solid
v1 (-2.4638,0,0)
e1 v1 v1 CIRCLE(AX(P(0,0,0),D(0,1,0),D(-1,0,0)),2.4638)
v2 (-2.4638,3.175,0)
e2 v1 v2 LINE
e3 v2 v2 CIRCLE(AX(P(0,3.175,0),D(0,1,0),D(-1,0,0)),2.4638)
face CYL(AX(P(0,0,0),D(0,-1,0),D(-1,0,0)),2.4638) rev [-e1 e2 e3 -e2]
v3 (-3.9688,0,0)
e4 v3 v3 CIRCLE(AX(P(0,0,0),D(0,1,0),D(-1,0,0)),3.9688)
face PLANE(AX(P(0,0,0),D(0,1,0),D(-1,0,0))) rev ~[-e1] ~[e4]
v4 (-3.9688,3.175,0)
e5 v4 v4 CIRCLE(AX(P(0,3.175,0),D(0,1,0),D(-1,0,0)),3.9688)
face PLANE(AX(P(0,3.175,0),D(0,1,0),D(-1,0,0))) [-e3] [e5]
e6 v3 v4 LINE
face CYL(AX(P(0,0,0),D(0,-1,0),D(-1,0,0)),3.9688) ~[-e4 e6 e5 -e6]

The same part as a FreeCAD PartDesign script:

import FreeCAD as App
import Part
import Sketcher

V = App.Vector
Q = App.Units.Quantity

doc = App.newDocument("Part")
body = doc.addObject("PartDesign::Body", "Body")

# Sketch on XZ plane
sketch1 = body.newObject("Sketcher::SketchObject", "Sketch")
sketch1.AttachmentSupport = (doc.getObject("XZ_Plane"), [""])
sketch1.MapMode = "FlatFace"
sketch1.addGeometry([
    Part.Circle(V(0, 0, 0), V(0, 0, 1), 3.9688),
    Part.Circle(V(0, 0, 0), V(0, 0, 1), 2.4638),
], False)
sketch1.addConstraint([
    Sketcher.Constraint("Coincident", 0, 3, -1, 1),
    Sketcher.Constraint("Coincident", 1, 3, -1, 1),
    Sketcher.Constraint("Diameter", 0, Q("0.3125 in")),
    Sketcher.Constraint("Diameter", 1, Q("0.194 in")),
])
pad1 = body.newObject("PartDesign::Pad", "Pad")
pad1.Profile = sketch1
pad1.Length = Q("0.125 in")
pad1.Reversed = True

doc.recompute()
